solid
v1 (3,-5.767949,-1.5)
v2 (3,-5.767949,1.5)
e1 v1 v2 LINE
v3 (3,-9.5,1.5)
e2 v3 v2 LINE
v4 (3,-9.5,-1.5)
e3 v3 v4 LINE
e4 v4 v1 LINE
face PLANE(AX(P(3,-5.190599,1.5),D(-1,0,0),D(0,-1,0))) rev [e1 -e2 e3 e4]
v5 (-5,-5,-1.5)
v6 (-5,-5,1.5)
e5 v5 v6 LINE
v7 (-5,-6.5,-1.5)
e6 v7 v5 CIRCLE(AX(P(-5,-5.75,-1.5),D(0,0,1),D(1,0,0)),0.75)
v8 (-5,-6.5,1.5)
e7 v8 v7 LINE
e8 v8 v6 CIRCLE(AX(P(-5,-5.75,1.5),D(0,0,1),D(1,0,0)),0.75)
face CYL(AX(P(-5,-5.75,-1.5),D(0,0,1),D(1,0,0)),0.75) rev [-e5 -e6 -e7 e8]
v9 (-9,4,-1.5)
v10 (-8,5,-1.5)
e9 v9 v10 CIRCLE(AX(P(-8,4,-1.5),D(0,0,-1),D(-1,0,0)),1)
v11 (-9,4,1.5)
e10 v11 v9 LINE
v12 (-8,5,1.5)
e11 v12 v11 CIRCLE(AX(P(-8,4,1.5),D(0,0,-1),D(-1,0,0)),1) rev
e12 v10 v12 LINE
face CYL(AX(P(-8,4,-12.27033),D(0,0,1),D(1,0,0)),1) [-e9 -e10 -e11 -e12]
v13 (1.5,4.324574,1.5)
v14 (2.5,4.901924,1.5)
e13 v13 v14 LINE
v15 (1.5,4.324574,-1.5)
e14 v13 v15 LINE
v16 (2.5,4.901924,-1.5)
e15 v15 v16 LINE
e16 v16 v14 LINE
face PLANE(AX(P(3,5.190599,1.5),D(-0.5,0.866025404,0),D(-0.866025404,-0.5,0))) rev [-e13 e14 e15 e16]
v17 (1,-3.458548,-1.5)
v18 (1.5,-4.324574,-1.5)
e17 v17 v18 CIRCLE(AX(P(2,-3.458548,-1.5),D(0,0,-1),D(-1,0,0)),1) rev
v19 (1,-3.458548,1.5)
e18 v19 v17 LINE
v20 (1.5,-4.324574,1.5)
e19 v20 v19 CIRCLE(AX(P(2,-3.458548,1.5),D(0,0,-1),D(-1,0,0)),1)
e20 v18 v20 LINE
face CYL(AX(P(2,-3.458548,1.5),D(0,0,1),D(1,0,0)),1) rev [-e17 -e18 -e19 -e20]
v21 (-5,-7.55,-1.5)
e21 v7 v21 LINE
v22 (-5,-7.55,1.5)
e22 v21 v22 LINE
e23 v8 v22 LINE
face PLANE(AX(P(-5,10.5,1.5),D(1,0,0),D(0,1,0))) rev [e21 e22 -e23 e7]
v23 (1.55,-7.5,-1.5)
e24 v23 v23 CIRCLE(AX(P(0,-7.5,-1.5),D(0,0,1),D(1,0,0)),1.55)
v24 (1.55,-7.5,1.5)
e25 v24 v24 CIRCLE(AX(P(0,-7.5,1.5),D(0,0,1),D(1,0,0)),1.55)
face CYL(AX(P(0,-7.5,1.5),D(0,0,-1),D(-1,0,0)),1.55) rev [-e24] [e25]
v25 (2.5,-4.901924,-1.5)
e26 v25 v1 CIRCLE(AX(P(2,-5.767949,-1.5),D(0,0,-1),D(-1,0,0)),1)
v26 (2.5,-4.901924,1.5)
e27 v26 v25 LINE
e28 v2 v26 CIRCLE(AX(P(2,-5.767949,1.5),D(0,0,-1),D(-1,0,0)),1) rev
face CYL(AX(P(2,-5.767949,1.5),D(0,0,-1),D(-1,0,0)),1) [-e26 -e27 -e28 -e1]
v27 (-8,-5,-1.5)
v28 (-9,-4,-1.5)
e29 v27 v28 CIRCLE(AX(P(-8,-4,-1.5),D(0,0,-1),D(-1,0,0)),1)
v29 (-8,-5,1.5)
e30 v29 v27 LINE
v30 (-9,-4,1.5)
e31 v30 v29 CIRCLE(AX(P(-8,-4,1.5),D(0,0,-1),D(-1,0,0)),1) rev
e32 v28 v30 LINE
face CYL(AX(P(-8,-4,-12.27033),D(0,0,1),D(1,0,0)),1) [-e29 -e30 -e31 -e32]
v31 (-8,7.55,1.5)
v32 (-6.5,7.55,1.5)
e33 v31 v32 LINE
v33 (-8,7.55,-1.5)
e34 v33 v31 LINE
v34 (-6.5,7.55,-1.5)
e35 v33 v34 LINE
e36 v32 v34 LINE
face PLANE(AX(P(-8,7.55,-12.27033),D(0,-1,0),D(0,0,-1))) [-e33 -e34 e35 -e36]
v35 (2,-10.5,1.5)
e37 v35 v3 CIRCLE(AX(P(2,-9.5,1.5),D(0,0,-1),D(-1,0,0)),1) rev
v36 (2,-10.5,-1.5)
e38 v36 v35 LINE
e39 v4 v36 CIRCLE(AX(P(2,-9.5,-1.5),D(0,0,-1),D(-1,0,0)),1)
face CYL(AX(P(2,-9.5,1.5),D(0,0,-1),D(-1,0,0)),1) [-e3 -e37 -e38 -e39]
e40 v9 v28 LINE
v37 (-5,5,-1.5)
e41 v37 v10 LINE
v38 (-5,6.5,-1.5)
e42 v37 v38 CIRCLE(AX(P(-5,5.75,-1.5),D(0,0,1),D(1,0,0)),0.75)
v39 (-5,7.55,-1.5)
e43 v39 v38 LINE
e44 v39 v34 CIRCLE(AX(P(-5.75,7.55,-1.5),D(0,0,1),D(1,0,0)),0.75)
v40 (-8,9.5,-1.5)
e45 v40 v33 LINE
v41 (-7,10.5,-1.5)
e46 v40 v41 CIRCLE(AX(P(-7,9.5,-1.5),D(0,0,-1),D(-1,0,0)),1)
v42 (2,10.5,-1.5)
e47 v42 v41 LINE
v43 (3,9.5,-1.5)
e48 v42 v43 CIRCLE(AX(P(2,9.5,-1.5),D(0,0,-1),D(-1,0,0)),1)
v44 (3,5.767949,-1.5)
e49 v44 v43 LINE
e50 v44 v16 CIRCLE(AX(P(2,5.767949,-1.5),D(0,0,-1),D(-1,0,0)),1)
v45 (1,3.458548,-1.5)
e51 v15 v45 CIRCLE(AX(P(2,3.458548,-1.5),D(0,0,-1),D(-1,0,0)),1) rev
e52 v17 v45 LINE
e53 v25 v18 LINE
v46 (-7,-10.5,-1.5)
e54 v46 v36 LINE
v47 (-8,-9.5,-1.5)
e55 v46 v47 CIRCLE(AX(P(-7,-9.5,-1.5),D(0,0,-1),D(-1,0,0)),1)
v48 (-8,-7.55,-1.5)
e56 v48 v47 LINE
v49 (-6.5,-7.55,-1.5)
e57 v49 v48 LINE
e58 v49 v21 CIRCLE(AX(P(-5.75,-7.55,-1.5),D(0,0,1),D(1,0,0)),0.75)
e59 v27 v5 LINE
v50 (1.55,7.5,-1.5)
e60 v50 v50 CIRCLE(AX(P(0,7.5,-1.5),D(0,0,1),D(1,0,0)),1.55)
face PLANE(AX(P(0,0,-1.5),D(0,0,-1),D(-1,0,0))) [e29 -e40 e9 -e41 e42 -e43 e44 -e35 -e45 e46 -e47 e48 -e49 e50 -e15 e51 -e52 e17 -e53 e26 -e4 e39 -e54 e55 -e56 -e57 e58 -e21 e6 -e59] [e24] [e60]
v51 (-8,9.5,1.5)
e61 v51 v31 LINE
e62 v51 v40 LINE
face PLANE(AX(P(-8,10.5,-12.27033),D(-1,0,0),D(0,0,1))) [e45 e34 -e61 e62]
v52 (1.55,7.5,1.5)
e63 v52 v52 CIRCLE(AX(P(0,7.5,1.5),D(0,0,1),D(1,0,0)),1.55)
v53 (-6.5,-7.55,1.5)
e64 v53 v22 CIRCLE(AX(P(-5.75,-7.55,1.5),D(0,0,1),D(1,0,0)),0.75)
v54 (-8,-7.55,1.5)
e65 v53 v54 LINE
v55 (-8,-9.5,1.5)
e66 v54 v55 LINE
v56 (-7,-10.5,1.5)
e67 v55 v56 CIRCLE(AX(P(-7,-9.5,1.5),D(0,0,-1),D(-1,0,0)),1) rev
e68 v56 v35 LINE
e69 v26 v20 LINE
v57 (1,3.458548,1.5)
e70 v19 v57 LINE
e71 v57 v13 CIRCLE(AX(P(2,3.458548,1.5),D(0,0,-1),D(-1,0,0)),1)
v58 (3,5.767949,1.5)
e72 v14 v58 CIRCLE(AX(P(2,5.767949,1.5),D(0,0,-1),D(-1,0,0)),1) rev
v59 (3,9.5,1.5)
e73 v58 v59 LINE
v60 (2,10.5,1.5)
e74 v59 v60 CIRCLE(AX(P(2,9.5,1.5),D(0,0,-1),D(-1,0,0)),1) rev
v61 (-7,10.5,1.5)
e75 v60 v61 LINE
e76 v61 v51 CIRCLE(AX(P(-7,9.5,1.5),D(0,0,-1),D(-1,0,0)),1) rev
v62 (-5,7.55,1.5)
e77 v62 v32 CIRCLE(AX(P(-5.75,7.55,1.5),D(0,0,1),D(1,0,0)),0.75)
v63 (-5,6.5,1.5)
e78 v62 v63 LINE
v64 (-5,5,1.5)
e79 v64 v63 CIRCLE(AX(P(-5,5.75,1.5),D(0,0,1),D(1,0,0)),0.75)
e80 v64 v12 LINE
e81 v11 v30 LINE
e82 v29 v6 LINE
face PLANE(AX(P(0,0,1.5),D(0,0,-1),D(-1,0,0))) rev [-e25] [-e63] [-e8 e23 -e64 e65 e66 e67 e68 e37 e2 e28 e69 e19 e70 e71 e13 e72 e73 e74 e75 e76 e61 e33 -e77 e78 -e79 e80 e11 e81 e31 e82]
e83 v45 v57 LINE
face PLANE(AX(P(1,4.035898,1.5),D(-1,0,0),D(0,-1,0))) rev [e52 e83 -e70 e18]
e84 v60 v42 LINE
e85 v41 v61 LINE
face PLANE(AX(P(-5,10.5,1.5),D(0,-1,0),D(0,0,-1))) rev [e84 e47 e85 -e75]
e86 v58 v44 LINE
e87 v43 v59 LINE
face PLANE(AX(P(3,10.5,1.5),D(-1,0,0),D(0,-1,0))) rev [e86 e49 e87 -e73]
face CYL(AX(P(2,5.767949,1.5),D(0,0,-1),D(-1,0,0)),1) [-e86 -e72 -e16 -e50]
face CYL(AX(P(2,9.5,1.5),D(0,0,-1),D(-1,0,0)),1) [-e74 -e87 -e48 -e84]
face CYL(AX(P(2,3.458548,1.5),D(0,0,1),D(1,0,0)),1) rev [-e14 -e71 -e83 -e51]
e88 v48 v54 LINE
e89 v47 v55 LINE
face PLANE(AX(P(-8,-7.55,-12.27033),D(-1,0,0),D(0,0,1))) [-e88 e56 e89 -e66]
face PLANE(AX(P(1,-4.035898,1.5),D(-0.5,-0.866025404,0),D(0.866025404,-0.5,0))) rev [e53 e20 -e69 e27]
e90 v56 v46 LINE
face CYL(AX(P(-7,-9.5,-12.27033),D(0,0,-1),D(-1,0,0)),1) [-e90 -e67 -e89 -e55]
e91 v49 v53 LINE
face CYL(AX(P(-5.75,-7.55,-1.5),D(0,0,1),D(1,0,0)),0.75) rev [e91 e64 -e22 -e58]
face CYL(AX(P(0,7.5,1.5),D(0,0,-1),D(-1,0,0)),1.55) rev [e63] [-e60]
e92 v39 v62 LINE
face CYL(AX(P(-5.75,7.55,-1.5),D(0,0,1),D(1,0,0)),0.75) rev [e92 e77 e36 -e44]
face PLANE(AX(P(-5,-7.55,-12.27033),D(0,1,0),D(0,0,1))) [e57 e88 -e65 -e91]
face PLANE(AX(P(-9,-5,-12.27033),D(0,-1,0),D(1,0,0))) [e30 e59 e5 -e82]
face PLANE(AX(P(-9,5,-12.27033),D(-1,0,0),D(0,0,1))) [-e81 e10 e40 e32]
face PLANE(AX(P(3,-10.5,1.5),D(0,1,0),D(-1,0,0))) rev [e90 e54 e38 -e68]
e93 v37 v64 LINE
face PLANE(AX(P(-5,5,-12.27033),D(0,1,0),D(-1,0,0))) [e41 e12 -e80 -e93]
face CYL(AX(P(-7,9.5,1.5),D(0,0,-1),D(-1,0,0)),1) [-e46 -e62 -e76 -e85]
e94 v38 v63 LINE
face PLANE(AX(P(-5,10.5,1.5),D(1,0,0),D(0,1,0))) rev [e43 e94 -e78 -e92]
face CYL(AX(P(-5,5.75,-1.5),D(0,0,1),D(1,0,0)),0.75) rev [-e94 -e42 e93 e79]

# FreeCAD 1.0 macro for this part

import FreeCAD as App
import Part
import Sketcher
from FreeCAD import Vector
Q = App.Units.Quantity


def edges_at(feature, points):
    """Names of the edges that pass closest to the given points."""
    edges = feature.Shape.Edges
    near = lambda p: min(range(len(edges)), key=lambda i: edges[i].distToShape(Part.Vertex(*p))[0])
    return sorted({f"Edge{near(p) + 1}" for p in points})

doc = App.newDocument("Part")
body = doc.addObject("PartDesign::Body", "Body")

# Sketch on XY plane
sketch1 = doc.addObject("Sketcher::SketchObject", "Sketch")
body.addObject(sketch1)
sketch1.AttachmentSupport = (doc.XY_Plane, [""])
sketch1.MapMode = "FlatFace"
sketch1.addGeometry(Part.LineSegment(Vector(-5, 10.5, 0), Vector(-5, -10.5, 0)), False)
sketch1.addGeometry(Part.LineSegment(Vector(-5, -10.5, 0), Vector(3, -10.5, 0)), False)
sketch1.addGeometry(Part.LineSegment(Vector(3, -10.5, 0), Vector(3, -5.190599, 0)), False)
sketch1.addGeometry(Part.LineSegment(Vector(3, -5.190599, 0), Vector(1, -4.035898, 0)), False)
sketch1.addGeometry(Part.LineSegment(Vector(1, -4.035898, 0), Vector(1, 4.035898, 0)), False)
sketch1.addGeometry(Part.LineSegment(Vector(1, 4.035898, 0), Vector(3, 5.190599, 0)), False)
sketch1.addGeometry(Part.LineSegment(Vector(3, 5.190599, 0), Vector(3, 10.5, 0)), False)
sketch1.addGeometry(Part.LineSegment(Vector(3, 10.5, 0), Vector(-5, 10.5, 0)), False)
sketch1.addGeometry(Part.Circle(Vector(0, -7.5, 0), Vector(0, 0, 1), 1.55), False)
sketch1.addGeometry(Part.Circle(Vector(0, 7.5, 0), Vector(0, 0, 1), 1.55), False)
sketch1.addConstraint(Sketcher.Constraint("Coincident", 0, 2, 1, 1))
sketch1.addConstraint(Sketcher.Constraint("Coincident", 1, 2, 2, 1))
sketch1.addConstraint(Sketcher.Constraint("Coincident", 2, 2, 3, 1))
sketch1.addConstraint(Sketcher.Constraint("Coincident", 3, 2, 4, 1))
sketch1.addConstraint(Sketcher.Constraint("Coincident", 4, 2, 5, 1))
sketch1.addConstraint(Sketcher.Constraint("Coincident", 5, 2, 6, 1))
sketch1.addConstraint(Sketcher.Constraint("Coincident", 6, 2, 7, 1))
sketch1.addConstraint(Sketcher.Constraint("Coincident", 7, 2, 0, 1))
sketch1.addConstraint(Sketcher.Constraint("Vertical", 0))
sketch1.addConstraint(Sketcher.Constraint("Horizontal", 1))
sketch1.addConstraint(Sketcher.Constraint("Vertical", 2))
sketch1.addConstraint(Sketcher.Constraint("Vertical", 4))
sketch1.addConstraint(Sketcher.Constraint("Vertical", 6))
sketch1.addConstraint(Sketcher.Constraint("Horizontal", 7))
sketch1.addConstraint(Sketcher.Constraint("Equal", 8, 9))
sketch1.addConstraint(Sketcher.Constraint("Symmetric", 8, 3, 9, 3, -1, 1))
sketch1.addConstraint(Sketcher.Constraint("Symmetric", 2, 2, 5, 2, -1))
sketch1.addConstraint(Sketcher.Constraint("PointOnObject", 8, 3, -2))
sketch1.addConstraint(Sketcher.Constraint("Equal", 2, 6))
sketch1.addConstraint(Sketcher.Constraint("Equal", 3, 5))
sketch1.addConstraint(Sketcher.Constraint("Diameter", 8, 3.1))
sketch1.addConstraint(Sketcher.Constraint("DistanceX", 1, 1, 1, 2, 8.0))
sketch1.addConstraint(Sketcher.Constraint("DistanceY", 0, 2, 0, 1, 21.0))
sketch1.addConstraint(Sketcher.Constraint("Angle", 3, Q("150 deg")))
sketch1.addConstraint(Sketcher.Constraint("DistanceX", 0, 2, -1, 1, 5.0))
sketch1.addConstraint(Sketcher.Constraint("DistanceX", -1, 1, 3, 2, 1.0))
sketch1.addConstraint(Sketcher.Constraint("DistanceY", 8, 3, 9, 3, 15.0))
sketch1.addConstraint(Sketcher.Constraint("DistanceY", 2, 1, 2, 2, 5.309401))
pad1 = doc.addObject("PartDesign::Pad", "Pad")
body.addObject(pad1)
pad1.Profile = sketch1
pad1.Length = 3
pad1.Midplane = True

# Sketch on XY plane
sketch2 = doc.addObject("Sketcher::SketchObject", "Sketch001")
body.addObject(sketch2)
sketch2.AttachmentSupport = (doc.XY_Plane, [""])
sketch2.MapMode = "FlatFace"
sketch2.AttachmentOffset = App.Placement(Vector(0, 0, 1.5), App.Rotation())
sketch2.addGeometry(Part.LineSegment(Vector(-8, -7.55, 0), Vector(-8, -10.5, 0)), False)
sketch2.addGeometry(Part.LineSegment(Vector(-8, -10.5, 0), Vector(-5, -10.5, 0)), False)
sketch2.addGeometry(Part.LineSegment(Vector(-5, -10.5, 0), Vector(-5, -7.55, 0)), False)
sketch2.addGeometry(Part.LineSegment(Vector(-5, -7.55, 0), Vector(-8, -7.55, 0)), False)
sketch2.addGeometry(Part.LineSegment(Vector(-9, 5, 0), Vector(-9, -5, 0)), False)
sketch2.addGeometry(Part.LineSegment(Vector(-9, -5, 0), Vector(-5, -5, 0)), False)
sketch2.addGeometry(Part.LineSegment(Vector(-5, -5, 0), Vector(-5, 5, 0)), False)
sketch2.addGeometry(Part.LineSegment(Vector(-5, 5, 0), Vector(-9, 5, 0)), False)
sketch2.addGeometry(Part.LineSegment(Vector(-8, 10.5, 0), Vector(-8, 7.55, 0)), False)
sketch2.addGeometry(Part.LineSegment(Vector(-8, 7.55, 0), Vector(-5, 7.55, 0)), False)
sketch2.addGeometry(Part.LineSegment(Vector(-5, 7.55, 0), Vector(-5, 10.5, 0)), False)
sketch2.addGeometry(Part.LineSegment(Vector(-5, 10.5, 0), Vector(-8, 10.5, 0)), False)
sketch2.addConstraint(Sketcher.Constraint("Coincident", 0, 2, 1, 1))
sketch2.addConstraint(Sketcher.Constraint("Coincident", 1, 2, 2, 1))
sketch2.addConstraint(Sketcher.Constraint("Coincident", 2, 2, 3, 1))
sketch2.addConstraint(Sketcher.Constraint("Coincident", 3, 2, 0, 1))
sketch2.addConstraint(Sketcher.Constraint("Coincident", 4, 2, 5, 1))
sketch2.addConstraint(Sketcher.Constraint("Coincident", 5, 2, 6, 1))
sketch2.addConstraint(Sketcher.Constraint("Coincident", 6, 2, 7, 1))
sketch2.addConstraint(Sketcher.Constraint("Coincident", 7, 2, 4, 1))
sketch2.addConstraint(Sketcher.Constraint("Coincident", 8, 2, 9, 1))
sketch2.addConstraint(Sketcher.Constraint("Coincident", 9, 2, 10, 1))
sketch2.addConstraint(Sketcher.Constraint("Coincident", 10, 2, 11, 1))
sketch2.addConstraint(Sketcher.Constraint("Coincident", 11, 2, 8, 1))
sketch2.addConstraint(Sketcher.Constraint("Vertical", 0))
sketch2.addConstraint(Sketcher.Constraint("Horizontal", 1))
sketch2.addConstraint(Sketcher.Constraint("Vertical", 2))
sketch2.addConstraint(Sketcher.Constraint("Horizontal", 3))
sketch2.addConstraint(Sketcher.Constraint("Vertical", 4))
sketch2.addConstraint(Sketcher.Constraint("Horizontal", 5))
sketch2.addConstraint(Sketcher.Constraint("Vertical", 6))
sketch2.addConstraint(Sketcher.Constraint("Horizontal", 7))
sketch2.addConstraint(Sketcher.Constraint("Vertical", 8))
sketch2.addConstraint(Sketcher.Constraint("Horizontal", 9))
sketch2.addConstraint(Sketcher.Constraint("Vertical", 10))
sketch2.addConstraint(Sketcher.Constraint("Horizontal", 11))
sketch2.addConstraint(Sketcher.Constraint("Symmetric", 3, 2, 8, 2, -1))
sketch2.addConstraint(Sketcher.Constraint("Symmetric", 1, 2, 10, 2, -1))
sketch2.addConstraint(Sketcher.Constraint("Vertical", 2, 2, 5, 2))
sketch2.addConstraint(Sketcher.Constraint("DistanceX", 1, 1, 1, 2, 3.0))
sketch2.addConstraint(Sketcher.Constraint("DistanceX", 5, 1, 5, 2, 4.0))
sketch2.addConstraint(Sketcher.Constraint("DistanceY", 4, 2, 4, 1, 10.0))
sketch2.addConstraint(Sketcher.Constraint("DistanceX", 0, 2, -1, 1, 8.0))
sketch2.addConstraint(Sketcher.Constraint("DistanceY", 4, 2, -1, 1, 5.0))
sketch2.addConstraint(Sketcher.Constraint("DistanceY", 0, 2, 0, 1, 2.95))
sketch2.addConstraint(Sketcher.Constraint("DistanceY", 0, 2, -1, 1, 10.5))
pad2 = doc.addObject("PartDesign::Pad", "Pad001")
body.addObject(pad2)
pad2.Profile = sketch2
pad2.Length = 3
pad2.Reversed = True

# Sketch on XY plane
sketch3 = doc.addObject("Sketcher::SketchObject", "Sketch002")
body.addObject(sketch3)
sketch3.AttachmentSupport = (doc.XY_Plane, [""])
sketch3.MapMode = "FlatFace"
sketch3.AttachmentOffset = App.Placement(Vector(0, 0, 1.5), App.Rotation())
sketch3.addGeometry(Part.Circle(Vector(-5.75, 7.55, 0), Vector(0, 0, 1), 0.75), False)
sketch3.addGeometry(Part.Circle(Vector(-5, 5.75, 0), Vector(0, 0, 1), 0.75), False)
sketch3.addGeometry(Part.Circle(Vector(-5, -5.75, 0), Vector(0, 0, 1), 0.75), False)
sketch3.addGeometry(Part.Circle(Vector(-5.75, -7.55, 0), Vector(0, 0, 1), 0.75), False)
sketch3.addConstraint(Sketcher.Constraint("Equal", 0, 1))
sketch3.addConstraint(Sketcher.Constraint("Equal", 1, 2))
sketch3.addConstraint(Sketcher.Constraint("Equal", 2, 3))
sketch3.addConstraint(Sketcher.Constraint("Symmetric", 1, 3, 2, 3, -1))
sketch3.addConstraint(Sketcher.Constraint("Symmetric", 0, 3, 3, 3, -1))
sketch3.addConstraint(Sketcher.Constraint("Diameter", 0, 1.5))
sketch3.addConstraint(Sketcher.Constraint("DistanceX", 1, 3, -1, 1, 5.0))
sketch3.addConstraint(Sketcher.Constraint("DistanceY", 1, 3, 0, 3, 1.8))
sketch3.addConstraint(Sketcher.Constraint("DistanceY", 2, 3, 1, 3, 11.5))
sketch3.addConstraint(Sketcher.Constraint("DistanceX", 0, 3, -1, 1, 5.75))
pocket1 = doc.addObject("PartDesign::Pocket", "Pocket")
body.addObject(pocket1)
pocket1.Profile = sketch3
pocket1.Type = "ThroughAll"
doc.recompute()

fillet = doc.addObject("PartDesign::Fillet", "Fillet")
body.addObject(fillet)
fillet.Base = (pocket1, edges_at(pocket1, [
    (3, 10.5, 0),
    (3, 5.191, 0),
    (1, 4.036, 0),
    (1, -4.036, 0),
    (3, -5.191, 0),
    (3, -10.5, 0),
    (-8, 10.5, 0),
    (-8, -10.5, 0),
    (-9, 5, 0),
    (-9, -5, 0),
]))
fillet.Radius = 1

doc.recompute()
